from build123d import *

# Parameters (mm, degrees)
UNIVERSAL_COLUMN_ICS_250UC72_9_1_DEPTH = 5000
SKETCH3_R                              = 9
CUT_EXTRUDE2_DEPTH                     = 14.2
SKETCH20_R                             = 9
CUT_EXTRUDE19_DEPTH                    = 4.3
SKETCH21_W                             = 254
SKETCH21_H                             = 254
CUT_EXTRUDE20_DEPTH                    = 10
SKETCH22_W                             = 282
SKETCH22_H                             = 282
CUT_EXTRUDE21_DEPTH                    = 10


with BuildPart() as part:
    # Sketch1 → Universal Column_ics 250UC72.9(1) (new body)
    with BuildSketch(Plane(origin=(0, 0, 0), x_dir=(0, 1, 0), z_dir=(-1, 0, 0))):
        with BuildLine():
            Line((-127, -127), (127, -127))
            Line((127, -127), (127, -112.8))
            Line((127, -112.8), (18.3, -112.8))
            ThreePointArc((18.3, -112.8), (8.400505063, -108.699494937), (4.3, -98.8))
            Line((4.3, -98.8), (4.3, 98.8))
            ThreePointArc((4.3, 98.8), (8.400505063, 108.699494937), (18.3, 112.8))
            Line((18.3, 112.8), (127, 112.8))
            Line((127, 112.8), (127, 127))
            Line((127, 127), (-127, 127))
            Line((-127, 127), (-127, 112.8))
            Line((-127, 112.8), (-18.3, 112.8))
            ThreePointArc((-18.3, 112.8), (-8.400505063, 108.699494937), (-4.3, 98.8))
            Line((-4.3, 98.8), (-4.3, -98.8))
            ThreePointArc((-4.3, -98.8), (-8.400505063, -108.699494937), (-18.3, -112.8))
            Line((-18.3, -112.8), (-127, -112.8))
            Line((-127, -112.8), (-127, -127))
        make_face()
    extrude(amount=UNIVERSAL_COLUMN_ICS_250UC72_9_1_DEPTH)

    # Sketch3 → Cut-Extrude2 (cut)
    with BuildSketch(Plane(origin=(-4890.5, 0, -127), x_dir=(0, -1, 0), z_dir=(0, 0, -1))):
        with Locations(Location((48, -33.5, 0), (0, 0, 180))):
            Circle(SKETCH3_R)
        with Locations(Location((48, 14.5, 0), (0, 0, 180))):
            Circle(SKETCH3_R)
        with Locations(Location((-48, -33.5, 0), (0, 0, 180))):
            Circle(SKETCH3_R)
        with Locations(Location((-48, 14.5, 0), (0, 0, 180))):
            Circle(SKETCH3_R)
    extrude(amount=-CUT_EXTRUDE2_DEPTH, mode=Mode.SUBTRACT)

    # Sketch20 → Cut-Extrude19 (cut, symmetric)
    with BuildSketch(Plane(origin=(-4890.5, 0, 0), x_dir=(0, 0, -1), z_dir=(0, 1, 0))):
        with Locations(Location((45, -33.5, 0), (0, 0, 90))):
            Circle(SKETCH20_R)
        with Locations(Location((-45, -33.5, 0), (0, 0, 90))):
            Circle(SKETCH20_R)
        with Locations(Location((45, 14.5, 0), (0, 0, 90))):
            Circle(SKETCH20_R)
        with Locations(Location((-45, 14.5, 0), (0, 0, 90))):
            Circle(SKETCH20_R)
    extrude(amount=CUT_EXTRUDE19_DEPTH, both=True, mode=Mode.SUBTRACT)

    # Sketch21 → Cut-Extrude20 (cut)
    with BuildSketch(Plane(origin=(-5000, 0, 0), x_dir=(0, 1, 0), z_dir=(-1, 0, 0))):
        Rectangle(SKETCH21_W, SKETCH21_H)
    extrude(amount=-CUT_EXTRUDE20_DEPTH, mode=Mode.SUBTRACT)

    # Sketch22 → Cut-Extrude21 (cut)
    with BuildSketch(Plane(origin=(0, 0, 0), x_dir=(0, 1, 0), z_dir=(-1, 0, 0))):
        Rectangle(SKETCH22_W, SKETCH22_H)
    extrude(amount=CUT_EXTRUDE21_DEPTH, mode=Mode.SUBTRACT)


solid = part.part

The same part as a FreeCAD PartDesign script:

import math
import FreeCAD as App
import Part
import Sketcher
from FreeCAD import Vector

doc = App.newDocument("Part")
body = doc.addObject("PartDesign::Body", "Body")

# Sketch on YZ plane
sketch1 = body.newObject("Sketcher::SketchObject", "Sketch")
sketch1.AttachmentSupport = (doc.getObject("YZ_Plane"), [""])
sketch1.MapMode = "FlatFace"
sketch1.addGeometry(Part.LineSegment(Vector(-127, 127, 0), Vector(127, 127, 0)), False)
sketch1.addGeometry(Part.LineSegment(Vector(127, 127, 0), Vector(127, 113, 0)), False)
sketch1.addGeometry(Part.LineSegment(Vector(127, 113, 0), Vector(18, 113, 0)), False)
sketch1.addGeometry(Part.ArcOfCircle(Part.Circle(Vector(18, 99, 0), Vector(0, 0, 1), 14), math.radians(90), math.radians(180)), False)
sketch1.addGeometry(Part.LineSegment(Vector(4, 99, 0), Vector(4, -99, 0)), False)
sketch1.addGeometry(Part.ArcOfCircle(Part.Circle(Vector(18, -99, 0), Vector(0, 0, 1), 14), math.radians(180), math.radians(270)), False)
sketch1.addGeometry(Part.LineSegment(Vector(18, -113, 0), Vector(127, -113, 0)), False)
sketch1.addGeometry(Part.LineSegment(Vector(127, -113, 0), Vector(127, -127, 0)), False)
sketch1.addGeometry(Part.LineSegment(Vector(127, -127, 0), Vector(-127, -127, 0)), False)
sketch1.addGeometry(Part.LineSegment(Vector(-127, -127, 0), Vector(-127, -113, 0)), False)
sketch1.addGeometry(Part.LineSegment(Vector(-127, -113, 0), Vector(-18, -113, 0)), False)
sketch1.addGeometry(Part.ArcOfCircle(Part.Circle(Vector(-18, -99, 0), Vector(0, 0, 1), 14), math.radians(-90), math.radians(0)), False)
sketch1.addGeometry(Part.LineSegment(Vector(-4, -99, 0), Vector(-4, 99, 0)), False)
sketch1.addGeometry(Part.ArcOfCircle(Part.Circle(Vector(-18, 99, 0), Vector(0, 0, 1), 14), math.radians(0), math.radians(90)), False)
sketch1.addGeometry(Part.LineSegment(Vector(-18, 113, 0), Vector(-127, 113, 0)), False)
sketch1.addGeometry(Part.LineSegment(Vector(-127, 113, 0), Vector(-127, 127, 0)), False)
sketch1.addConstraint(Sketcher.Constraint("Coincident", 0, 2, 1, 1))
sketch1.addConstraint(Sketcher.Constraint("Coincident", 1, 2, 2, 1))
sketch1.addConstraint(Sketcher.Constraint("Tangent", 2, 2, 3, 1))
sketch1.addConstraint(Sketcher.Constraint("Tangent", 3, 2, 4, 1))
sketch1.addConstraint(Sketcher.Constraint("Tangent", 4, 2, 5, 1))
sketch1.addConstraint(Sketcher.Constraint("Tangent", 5, 2, 6, 1))
sketch1.addConstraint(Sketcher.Constraint("Coincident", 6, 2, 7, 1))
sketch1.addConstraint(Sketcher.Constraint("Coincident", 7, 2, 8, 1))
sketch1.addConstraint(Sketcher.Constraint("Coincident", 8, 2, 9, 1))
sketch1.addConstraint(Sketcher.Constraint("Coincident", 9, 2, 10, 1))
sketch1.addConstraint(Sketcher.Constraint("Tangent", 10, 2, 11, 1))
sketch1.addConstraint(Sketcher.Constraint("Tangent", 11, 2, 12, 1))
sketch1.addConstraint(Sketcher.Constraint("Tangent", 12, 2, 13, 1))
sketch1.addConstraint(Sketcher.Constraint("Tangent", 13, 2, 14, 1))
sketch1.addConstraint(Sketcher.Constraint("Coincident", 14, 2, 15, 1))
sketch1.addConstraint(Sketcher.Constraint("Coincident", 15, 2, 0, 1))
sketch1.addConstraint(Sketcher.Constraint("Horizontal", 0))
sketch1.addConstraint(Sketcher.Constraint("Vertical", 1))
sketch1.addConstraint(Sketcher.Constraint("Horizontal", 2))
sketch1.addConstraint(Sketcher.Constraint("Vertical", 4))
sketch1.addConstraint(Sketcher.Constraint("Horizontal", 6))
sketch1.addConstraint(Sketcher.Constraint("Vertical", 7))
sketch1.addConstraint(Sketcher.Constraint("Horizontal", 8))
sketch1.addConstraint(Sketcher.Constraint("Vertical", 9))
sketch1.addConstraint(Sketcher.Constraint("Horizontal", 10))
sketch1.addConstraint(Sketcher.Constraint("Vertical", 12))
sketch1.addConstraint(Sketcher.Constraint("Horizontal", 14))
sketch1.addConstraint(Sketcher.Constraint("Vertical", 15))
sketch1.addConstraint(Sketcher.Constraint("Equal", 3, 5))
sketch1.addConstraint(Sketcher.Constraint("Equal", 5, 11))
sketch1.addConstraint(Sketcher.Constraint("Equal", 11, 13))
sketch1.addConstraint(Sketcher.Constraint("Symmetric", 3, 3, 11, 3, -1, 1))
sketch1.addConstraint(Sketcher.Constraint("Symmetric", 0, 2, 8, 2, -1, 1))
sketch1.addConstraint(Sketcher.Constraint("Symmetric", 6, 2, 14, 2, -1, 1))
sketch1.addConstraint(Sketcher.Constraint("Symmetric", 6, 2, 9, 2, -2))
sketch1.addConstraint(Sketcher.Constraint("Radius", 3, 14.0))
sketch1.addConstraint(Sketcher.Constraint("DistanceX", 0, 1, 0, 2, 254.0))
sketch1.addConstraint(Sketcher.Constraint("DistanceX", 2, 2, 2, 1, 108.7))
sketch1.addConstraint(Sketcher.Constraint("DistanceY", 1, 2, 1, 1, 14.2))
sketch1.addConstraint(Sketcher.Constraint("DistanceY", 4, 2, 4, 1, 197.6))
pad1 = body.newObject("PartDesign::Pad", "Pad")
pad1.Profile = sketch1
pad1.Length = 5000
pad1.Reversed = True

# Sketch on XY plane
sketch2 = body.newObject("Sketcher::SketchObject", "Sketch001")
sketch2.AttachmentSupport = (doc.getObject("XY_Plane"), [""])
sketch2.MapMode = "FlatFace"
sketch2.AttachmentOffset = App.Placement(Vector(0, 0, -127), App.Rotation())
sketch2.addGeometry(Part.Circle(Vector(-4857, -48, 0), Vector(0, 0, 1), 9), False)
sketch2.addGeometry(Part.Circle(Vector(-4905, -48, 0), Vector(0, 0, 1), 9), False)
sketch2.addGeometry(Part.Circle(Vector(-4857, 48, 0), Vector(0, 0, 1), 9), False)
sketch2.addGeometry(Part.Circle(Vector(-4905, 48, 0), Vector(0, 0, 1), 9), False)
sketch2.addConstraint(Sketcher.Constraint("Equal", 0, 1))
sketch2.addConstraint(Sketcher.Constraint("Equal", 1, 2))
sketch2.addConstraint(Sketcher.Constraint("Equal", 2, 3))
sketch2.addConstraint(Sketcher.Constraint("Symmetric", 0, 3, 2, 3, -1))
sketch2.addConstraint(Sketcher.Constraint("Symmetric", 1, 3, 3, 3, -1))
sketch2.addConstraint(Sketcher.Constraint("Horizontal", 0, 3, 1, 3))
sketch2.addConstraint(Sketcher.Constraint("Diameter", 0, 18.0))
sketch2.addConstraint(Sketcher.Constraint("DistanceX", 0, 3, -1, 1, 4857.0))
sketch2.addConstraint(Sketcher.Constraint("DistanceY", 0, 3, -1, 1, 48.0))
sketch2.addConstraint(Sketcher.Constraint("DistanceX", 1, 3, -1, 1, 4905.0))
pocket1 = body.newObject("PartDesign::Pocket", "Pocket")
pocket1.Profile = sketch2
pocket1.Length = 14.2
pocket1.Reversed = True

# Sketch on XZ plane
sketch3 = body.newObject("Sketcher::SketchObject", "Sketch002")
sketch3.AttachmentSupport = (doc.getObject("XZ_Plane"), [""])
sketch3.MapMode = "FlatFace"
sketch3.addGeometry(Part.Circle(Vector(-4857, -45, 0), Vector(0, 0, 1), 9), False)
sketch3.addGeometry(Part.Circle(Vector(-4857, 45, 0), Vector(0, 0, 1), 9), False)
sketch3.addGeometry(Part.Circle(Vector(-4905, -45, 0), Vector(0, 0, 1), 9), False)
sketch3.addGeometry(Part.Circle(Vector(-4905, 45, 0), Vector(0, 0, 1), 9), False)
sketch3.addConstraint(Sketcher.Constraint("Equal", 0, 1))
sketch3.addConstraint(Sketcher.Constraint("Equal", 1, 2))
sketch3.addConstraint(Sketcher.Constraint("Equal", 2, 3))
sketch3.addConstraint(Sketcher.Constraint("Symmetric", 0, 3, 1, 3, -1))
sketch3.addConstraint(Sketcher.Constraint("Symmetric", 2, 3, 3, 3, -1))
sketch3.addConstraint(Sketcher.Constraint("Horizontal", 0, 3, 2, 3))
sketch3.addConstraint(Sketcher.Constraint("Diameter", 0, 18.0))
sketch3.addConstraint(Sketcher.Constraint("DistanceX", 0, 3, -1, 1, 4857.0))
sketch3.addConstraint(Sketcher.Constraint("DistanceY", 0, 3, -1, 1, 45.0))
sketch3.addConstraint(Sketcher.Constraint("DistanceX", 2, 3, -1, 1, 4905.0))
pocket2 = body.newObject("PartDesign::Pocket", "Pocket001")
pocket2.Profile = sketch3
pocket2.Length = 8.6
pocket2.Midplane = True

# Sketch on YZ plane
sketch4 = body.newObject("Sketcher::SketchObject", "Sketch003")
sketch4.AttachmentSupport = (doc.getObject("YZ_Plane"), [""])
sketch4.MapMode = "FlatFace"
sketch4.AttachmentOffset = App.Placement(Vector(0, 0, -5000), App.Rotation())
sketch4.addGeometry(Part.LineSegment(Vector(-127, -127, 0), Vector(-127, 127, 0)), False)
sketch4.addGeometry(Part.LineSegment(Vector(-127, 127, 0), Vector(127, 127, 0)), False)
sketch4.addGeometry(Part.LineSegment(Vector(127, 127, 0), Vector(127, -127, 0)), False)
sketch4.addGeometry(Part.LineSegment(Vector(127, -127, 0), Vector(-127, -127, 0)), False)
sketch4.addConstraint(Sketcher.Constraint("Coincident", 0, 2, 1, 1))
sketch4.addConstraint(Sketcher.Constraint("Coincident", 1, 2, 2, 1))
sketch4.addConstraint(Sketcher.Constraint("Coincident", 2, 2, 3, 1))
sketch4.addConstraint(Sketcher.Constraint("Coincident", 3, 2, 0, 1))
sketch4.addConstraint(Sketcher.Constraint("Vertical", 0))
sketch4.addConstraint(Sketcher.Constraint("Horizontal", 1))
sketch4.addConstraint(Sketcher.Constraint("Vertical", 2))
sketch4.addConstraint(Sketcher.Constraint("Horizontal", 3))
sketch4.addConstraint(Sketcher.Constraint("Symmetric", 0, 2, 2, 2, -1, 1))
sketch4.addConstraint(Sketcher.Constraint("Equal", 3, 0))
sketch4.addConstraint(Sketcher.Constraint("DistanceX", 1, 1, 1, 2, 254.0))
pocket3 = body.newObject("PartDesign::Pocket", "Pocket002")
pocket3.Profile = sketch4
pocket3.Length = 10
pocket3.Reversed = True

# Sketch on YZ plane
sketch5 = body.newObject("Sketcher::SketchObject", "Sketch004")
sketch5.AttachmentSupport = (doc.getObject("YZ_Plane"), [""])
sketch5.MapMode = "FlatFace"
sketch5.addGeometry(Part.LineSegment(Vector(-141, -141, 0), Vector(-141, 141, 0)), False)
sketch5.addGeometry(Part.LineSegment(Vector(-141, 141, 0), Vector(141, 141, 0)), False)
sketch5.addGeometry(Part.LineSegment(Vector(141, 141, 0), Vector(141, -141, 0)), False)
sketch5.addGeometry(Part.LineSegment(Vector(141, -141, 0), Vector(-141, -141, 0)), False)
sketch5.addConstraint(Sketcher.Constraint("Coincident", 0, 2, 1, 1))
sketch5.addConstraint(Sketcher.Constraint("Coincident", 1, 2, 2, 1))
sketch5.addConstraint(Sketcher.Constraint("Coincident", 2, 2, 3, 1))
sketch5.addConstraint(Sketcher.Constraint("Coincident", 3, 2, 0, 1))
sketch5.addConstraint(Sketcher.Constraint("Vertical", 0))
sketch5.addConstraint(Sketcher.Constraint("Horizontal", 1))
sketch5.addConstraint(Sketcher.Constraint("Vertical", 2))
sketch5.addConstraint(Sketcher.Constraint("Horizontal", 3))
sketch5.addConstraint(Sketcher.Constraint("Symmetric", 0, 2, 2, 2, -1, 1))
sketch5.addConstraint(Sketcher.Constraint("Equal", 3, 0))
sketch5.addConstraint(Sketcher.Constraint("DistanceX", 1, 1, 1, 2, 282.0))
pocket4 = body.newObject("PartDesign::Pocket", "Pocket003")
pocket4.Profile = sketch5
pocket4.Length = 10

doc.recompute()
